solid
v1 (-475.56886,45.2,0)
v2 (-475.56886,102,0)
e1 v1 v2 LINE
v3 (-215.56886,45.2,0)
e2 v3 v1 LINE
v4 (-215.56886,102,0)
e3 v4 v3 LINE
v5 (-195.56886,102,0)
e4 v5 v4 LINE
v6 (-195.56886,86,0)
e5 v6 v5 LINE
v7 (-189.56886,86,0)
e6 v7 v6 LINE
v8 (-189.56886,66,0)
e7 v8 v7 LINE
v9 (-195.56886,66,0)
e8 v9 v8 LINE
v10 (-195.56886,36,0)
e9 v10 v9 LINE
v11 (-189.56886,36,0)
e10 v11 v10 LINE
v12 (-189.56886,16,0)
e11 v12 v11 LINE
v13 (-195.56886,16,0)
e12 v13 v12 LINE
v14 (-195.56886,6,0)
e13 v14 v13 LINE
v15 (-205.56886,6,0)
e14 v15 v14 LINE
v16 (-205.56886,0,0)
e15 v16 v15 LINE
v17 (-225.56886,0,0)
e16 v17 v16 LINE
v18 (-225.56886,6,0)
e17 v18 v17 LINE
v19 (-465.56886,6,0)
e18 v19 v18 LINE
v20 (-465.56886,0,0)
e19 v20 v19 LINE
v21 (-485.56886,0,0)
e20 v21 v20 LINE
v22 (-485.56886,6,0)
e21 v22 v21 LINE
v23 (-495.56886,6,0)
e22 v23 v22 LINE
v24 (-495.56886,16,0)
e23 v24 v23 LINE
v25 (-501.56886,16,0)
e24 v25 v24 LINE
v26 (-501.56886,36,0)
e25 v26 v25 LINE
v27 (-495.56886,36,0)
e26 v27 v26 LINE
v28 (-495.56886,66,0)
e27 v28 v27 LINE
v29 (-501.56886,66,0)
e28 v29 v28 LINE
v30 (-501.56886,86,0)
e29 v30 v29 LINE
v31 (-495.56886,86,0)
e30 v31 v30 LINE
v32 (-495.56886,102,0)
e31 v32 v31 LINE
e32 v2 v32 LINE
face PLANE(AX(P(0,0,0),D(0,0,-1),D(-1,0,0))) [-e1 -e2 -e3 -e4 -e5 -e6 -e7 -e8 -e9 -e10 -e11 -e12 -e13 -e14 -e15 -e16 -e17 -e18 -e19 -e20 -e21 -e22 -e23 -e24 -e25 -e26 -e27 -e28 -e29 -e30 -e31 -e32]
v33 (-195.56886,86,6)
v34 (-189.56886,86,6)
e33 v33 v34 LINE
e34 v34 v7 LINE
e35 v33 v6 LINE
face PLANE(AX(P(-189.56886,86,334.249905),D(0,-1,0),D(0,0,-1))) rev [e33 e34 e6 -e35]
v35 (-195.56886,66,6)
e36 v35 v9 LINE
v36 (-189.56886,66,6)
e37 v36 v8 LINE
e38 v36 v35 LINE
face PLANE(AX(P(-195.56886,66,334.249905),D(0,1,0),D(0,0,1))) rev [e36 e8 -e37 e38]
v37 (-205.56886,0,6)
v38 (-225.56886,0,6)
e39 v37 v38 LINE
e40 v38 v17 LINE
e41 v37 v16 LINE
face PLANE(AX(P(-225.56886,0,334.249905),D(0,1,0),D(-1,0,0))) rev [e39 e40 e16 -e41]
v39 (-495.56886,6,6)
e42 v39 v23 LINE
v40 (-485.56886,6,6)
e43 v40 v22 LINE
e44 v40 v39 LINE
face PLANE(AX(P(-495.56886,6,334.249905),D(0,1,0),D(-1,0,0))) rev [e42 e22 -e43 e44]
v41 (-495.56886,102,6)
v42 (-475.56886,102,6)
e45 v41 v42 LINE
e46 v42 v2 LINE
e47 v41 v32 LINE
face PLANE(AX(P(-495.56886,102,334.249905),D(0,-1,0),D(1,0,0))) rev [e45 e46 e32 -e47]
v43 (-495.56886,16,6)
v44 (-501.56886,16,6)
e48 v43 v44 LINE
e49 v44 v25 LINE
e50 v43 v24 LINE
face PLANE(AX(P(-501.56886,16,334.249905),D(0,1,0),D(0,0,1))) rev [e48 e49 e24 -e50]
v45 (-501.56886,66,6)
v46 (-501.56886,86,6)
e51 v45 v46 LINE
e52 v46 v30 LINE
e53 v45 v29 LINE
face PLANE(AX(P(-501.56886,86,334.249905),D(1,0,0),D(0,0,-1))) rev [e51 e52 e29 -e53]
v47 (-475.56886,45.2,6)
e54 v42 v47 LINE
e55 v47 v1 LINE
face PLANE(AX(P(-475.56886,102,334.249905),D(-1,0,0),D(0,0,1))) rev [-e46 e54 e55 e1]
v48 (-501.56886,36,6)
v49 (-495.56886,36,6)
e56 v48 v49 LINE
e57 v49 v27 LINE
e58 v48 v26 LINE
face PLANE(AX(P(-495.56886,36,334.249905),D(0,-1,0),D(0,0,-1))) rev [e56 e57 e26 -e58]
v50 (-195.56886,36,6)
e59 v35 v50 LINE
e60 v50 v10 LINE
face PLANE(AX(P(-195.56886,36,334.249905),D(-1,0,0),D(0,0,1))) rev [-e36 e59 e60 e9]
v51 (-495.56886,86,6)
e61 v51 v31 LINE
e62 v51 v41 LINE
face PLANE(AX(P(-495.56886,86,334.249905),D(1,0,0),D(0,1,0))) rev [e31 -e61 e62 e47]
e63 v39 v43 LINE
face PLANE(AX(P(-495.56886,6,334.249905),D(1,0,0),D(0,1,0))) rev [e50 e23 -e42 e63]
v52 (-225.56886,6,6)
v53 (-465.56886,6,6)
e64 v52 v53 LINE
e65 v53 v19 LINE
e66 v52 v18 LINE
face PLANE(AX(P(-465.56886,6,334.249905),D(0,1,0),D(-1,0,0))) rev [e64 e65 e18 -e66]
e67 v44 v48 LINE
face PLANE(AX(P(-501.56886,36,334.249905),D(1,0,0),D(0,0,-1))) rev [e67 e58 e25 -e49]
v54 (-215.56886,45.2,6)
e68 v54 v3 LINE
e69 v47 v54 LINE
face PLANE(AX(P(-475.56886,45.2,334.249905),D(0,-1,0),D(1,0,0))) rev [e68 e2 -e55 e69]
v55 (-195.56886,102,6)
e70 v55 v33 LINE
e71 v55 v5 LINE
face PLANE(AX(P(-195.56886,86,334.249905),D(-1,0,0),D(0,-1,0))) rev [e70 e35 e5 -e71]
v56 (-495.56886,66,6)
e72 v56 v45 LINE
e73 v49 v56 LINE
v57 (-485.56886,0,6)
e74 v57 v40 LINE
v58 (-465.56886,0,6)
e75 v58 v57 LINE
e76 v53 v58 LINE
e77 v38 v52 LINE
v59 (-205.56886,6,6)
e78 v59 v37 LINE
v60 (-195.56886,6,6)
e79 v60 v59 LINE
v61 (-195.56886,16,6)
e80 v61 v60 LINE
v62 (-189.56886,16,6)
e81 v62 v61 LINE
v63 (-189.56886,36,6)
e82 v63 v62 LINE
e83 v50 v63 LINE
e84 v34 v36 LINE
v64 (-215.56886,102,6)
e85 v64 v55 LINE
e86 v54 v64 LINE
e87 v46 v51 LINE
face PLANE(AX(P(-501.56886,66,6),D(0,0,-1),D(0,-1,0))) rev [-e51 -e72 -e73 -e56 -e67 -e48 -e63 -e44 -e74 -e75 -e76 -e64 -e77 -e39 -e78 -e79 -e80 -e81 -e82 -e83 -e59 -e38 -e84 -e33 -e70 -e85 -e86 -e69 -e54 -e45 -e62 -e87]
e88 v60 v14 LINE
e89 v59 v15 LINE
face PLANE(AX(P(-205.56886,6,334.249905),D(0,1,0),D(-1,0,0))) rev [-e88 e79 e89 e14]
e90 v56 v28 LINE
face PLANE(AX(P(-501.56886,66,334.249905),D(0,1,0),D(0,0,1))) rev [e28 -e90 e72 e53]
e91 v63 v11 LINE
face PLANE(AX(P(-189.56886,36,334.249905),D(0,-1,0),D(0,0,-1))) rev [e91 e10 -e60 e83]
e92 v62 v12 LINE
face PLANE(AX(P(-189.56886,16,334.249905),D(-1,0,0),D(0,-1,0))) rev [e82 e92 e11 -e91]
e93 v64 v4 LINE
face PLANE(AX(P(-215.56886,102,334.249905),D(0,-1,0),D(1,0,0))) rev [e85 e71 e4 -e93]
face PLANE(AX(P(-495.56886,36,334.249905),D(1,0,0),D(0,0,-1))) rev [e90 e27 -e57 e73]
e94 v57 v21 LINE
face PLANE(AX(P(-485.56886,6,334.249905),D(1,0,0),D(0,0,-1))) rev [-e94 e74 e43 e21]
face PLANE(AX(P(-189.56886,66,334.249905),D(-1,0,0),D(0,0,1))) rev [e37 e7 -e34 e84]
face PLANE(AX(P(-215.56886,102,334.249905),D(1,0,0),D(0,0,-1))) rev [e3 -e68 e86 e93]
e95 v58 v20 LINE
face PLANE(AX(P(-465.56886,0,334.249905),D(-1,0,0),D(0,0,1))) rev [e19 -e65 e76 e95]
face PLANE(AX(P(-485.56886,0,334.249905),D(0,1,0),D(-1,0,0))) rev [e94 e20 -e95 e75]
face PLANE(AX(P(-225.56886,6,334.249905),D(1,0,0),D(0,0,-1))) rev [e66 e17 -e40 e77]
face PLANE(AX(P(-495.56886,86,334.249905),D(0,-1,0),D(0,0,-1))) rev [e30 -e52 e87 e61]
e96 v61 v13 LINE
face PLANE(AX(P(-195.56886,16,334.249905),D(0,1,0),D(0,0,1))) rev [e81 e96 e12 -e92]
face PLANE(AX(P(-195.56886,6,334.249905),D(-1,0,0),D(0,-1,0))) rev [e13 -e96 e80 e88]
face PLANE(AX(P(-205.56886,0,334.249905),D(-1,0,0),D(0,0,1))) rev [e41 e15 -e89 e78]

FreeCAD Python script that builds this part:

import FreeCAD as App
import Part
import Sketcher

V = App.Vector
Q = App.Units.Quantity


def add_polygon(sketch, points):
    """Adds a closed chain of lines whose ends are joined by coincident constraints."""
    first, n = sketch.GeometryCount, len(points)
    for a, b in zip(points, points[1:] + points[:1]):
        sketch.addGeometry(Part.LineSegment(App.Vector(*a, 0), App.Vector(*b, 0)), False)
    for i in range(n):
        sketch.addConstraint(Sketcher.Constraint("Coincident", first + i, 2, first + (i + 1) % n, 1))

doc = App.newDocument("Part")
params = doc.addObject("Spreadsheet::Sheet", "Params")
for row, (alias, value) in enumerate([
    ("sketch1_width", "10 mm"),
    ("sketch1_width2", "20 mm"),
    ("sketch1_width3", "240 mm"),
    ("sketch1_width4", "6 mm"),
    ("sketch1_height", "30 mm"),
    ("pad1_length", "6 mm"),
], start=1):
    params.set(f"A{row}", alias)
    params.set(f"B{row}", "=" + value)
    params.setAlias(f"B{row}", alias)

body = doc.addObject("PartDesign::Body", "Body")

# Sketch on XY plane
sketch1 = body.newObject("Sketcher::SketchObject", "Sketch")
sketch1.AttachmentSupport = (doc.getObject("XY_Plane"), [""])
sketch1.MapMode = "FlatFace"
add_polygon(sketch1, [(-496, 6), (-486, 6), (-486, 0), (-466, 0), (-466, 6), (-226, 6), (-226, 0), (-206, 0), (-206, 6), (-196, 6), (-196, 16), (-190, 16), (-190, 36), (-196, 36), (-196, 66), (-190, 66), (-190, 86), (-196, 86), (-196, 102), (-216, 102), (-216, 45), (-476, 45), (-476, 102), (-496, 102), (-496, 86), (-502, 86), (-502, 66), (-496, 66), (-496, 36), (-502, 36), (-502, 16), (-496, 16)])  # lines 0-31
sketch1.addConstraint([
    Sketcher.Constraint("Horizontal", 0),
    Sketcher.Constraint("Vertical", 1),
    Sketcher.Constraint("Horizontal", 2),
    Sketcher.Constraint("Vertical", 3),
    Sketcher.Constraint("Horizontal", 4),
    Sketcher.Constraint("Vertical", 5),
    Sketcher.Constraint("Horizontal", 6),
    Sketcher.Constraint("Vertical", 7),
    Sketcher.Constraint("Horizontal", 8),
    Sketcher.Constraint("Vertical", 9),
    Sketcher.Constraint("Horizontal", 10),
    Sketcher.Constraint("Vertical", 11),
    Sketcher.Constraint("Horizontal", 12),
    Sketcher.Constraint("Vertical", 13),
    Sketcher.Constraint("Horizontal", 14),
    Sketcher.Constraint("Vertical", 15),
    Sketcher.Constraint("Horizontal", 16),
    Sketcher.Constraint("Vertical", 17),
    Sketcher.Constraint("Horizontal", 18),
    Sketcher.Constraint("Vertical", 19),
    Sketcher.Constraint("Horizontal", 20),
    Sketcher.Constraint("Vertical", 21),
    Sketcher.Constraint("Horizontal", 22),
    Sketcher.Constraint("Vertical", 23),
    Sketcher.Constraint("Horizontal", 24),
    Sketcher.Constraint("Vertical", 25),
    Sketcher.Constraint("Horizontal", 26),
    Sketcher.Constraint("Vertical", 27),
    Sketcher.Constraint("Horizontal", 28),
    Sketcher.Constraint("Vertical", 29),
    Sketcher.Constraint("Horizontal", 30),
    Sketcher.Constraint("Vertical", 31),
    Sketcher.Constraint("PointOnObject", 1, 2, -1),
    Sketcher.Constraint("PointOnObject", 5, 2, -1),
    Sketcher.Constraint("Horizontal", 0, 2, 3, 2),
    Sketcher.Constraint("Horizontal", 4, 2, 7, 2),
    Sketcher.Constraint("Horizontal", 18, 2, 21, 2),
    Sketcher.Constraint("Horizontal", 16, 2, 23, 2),
    Sketcher.Constraint("Horizontal", 14, 2, 25, 2),
    Sketcher.Constraint("Horizontal", 12, 2, 27, 2),
    Sketcher.Constraint("Horizontal", 10, 2, 29, 2),
    Sketcher.Constraint("Vertical", 9, 2, 12, 2),
    Sketcher.Constraint("Vertical", 11, 2, 14, 2),
    Sketcher.Constraint("Vertical", 13, 2, 16, 2),
    Sketcher.Constraint("Vertical", 23, 2, 26, 2),
    Sketcher.Constraint("Vertical", 25, 2, 28, 2),
    Sketcher.Constraint("Vertical", 27, 2, 30, 2),
    Sketcher.Constraint("Equal", 2, 6),
    Sketcher.Constraint("Equal", 0, 8),
    Sketcher.Constraint("Equal", 6, 18),
    Sketcher.Constraint("Equal", 18, 22),
    Sketcher.Constraint("Equal", 16, 24),
    Sketcher.Constraint("Equal", 30, 1),
    Sketcher.Constraint("Equal", 8, 9),
    Sketcher.Constraint("Equal", 22, 11),
    Sketcher.Constraint("Equal", 11, 15),
    Sketcher.Constraint("DistanceX", 0, 1, 0, 2, Q("10 mm")),
    Sketcher.Constraint("DistanceX", 2, 1, 2, 2, Q("20 mm")),
    Sketcher.Constraint("DistanceX", 4, 1, 4, 2, Q("240 mm")),
    Sketcher.Constraint("DistanceX", 10, 1, 10, 2, Q("6 mm")),
    Sketcher.Constraint("DistanceY", 13, 1, 13, 2, Q("30 mm")),
    Sketcher.Constraint("DistanceY", 17, 1, 17, 2, Q("16 mm")),
    Sketcher.Constraint("DistanceY", 19, 2, 19, 1, Q("56.8 mm")),
    Sketcher.Constraint("DistanceX", 0, 2, -1, 1, Q("485.56886 mm")),
])
sketch1.setExpression("Constraints[88]", "Params.sketch1_width")
sketch1.setExpression("Constraints[89]", "Params.sketch1_width2")
sketch1.setExpression("Constraints[90]", "Params.sketch1_width3")
sketch1.setExpression("Constraints[91]", "Params.sketch1_width4")
sketch1.setExpression("Constraints[92]", "Params.sketch1_height")
pad1 = body.newObject("PartDesign::Pad", "Pad")
pad1.Profile = sketch1
pad1.setExpression("Length", "Params.pad1_length")

doc.recompute()
